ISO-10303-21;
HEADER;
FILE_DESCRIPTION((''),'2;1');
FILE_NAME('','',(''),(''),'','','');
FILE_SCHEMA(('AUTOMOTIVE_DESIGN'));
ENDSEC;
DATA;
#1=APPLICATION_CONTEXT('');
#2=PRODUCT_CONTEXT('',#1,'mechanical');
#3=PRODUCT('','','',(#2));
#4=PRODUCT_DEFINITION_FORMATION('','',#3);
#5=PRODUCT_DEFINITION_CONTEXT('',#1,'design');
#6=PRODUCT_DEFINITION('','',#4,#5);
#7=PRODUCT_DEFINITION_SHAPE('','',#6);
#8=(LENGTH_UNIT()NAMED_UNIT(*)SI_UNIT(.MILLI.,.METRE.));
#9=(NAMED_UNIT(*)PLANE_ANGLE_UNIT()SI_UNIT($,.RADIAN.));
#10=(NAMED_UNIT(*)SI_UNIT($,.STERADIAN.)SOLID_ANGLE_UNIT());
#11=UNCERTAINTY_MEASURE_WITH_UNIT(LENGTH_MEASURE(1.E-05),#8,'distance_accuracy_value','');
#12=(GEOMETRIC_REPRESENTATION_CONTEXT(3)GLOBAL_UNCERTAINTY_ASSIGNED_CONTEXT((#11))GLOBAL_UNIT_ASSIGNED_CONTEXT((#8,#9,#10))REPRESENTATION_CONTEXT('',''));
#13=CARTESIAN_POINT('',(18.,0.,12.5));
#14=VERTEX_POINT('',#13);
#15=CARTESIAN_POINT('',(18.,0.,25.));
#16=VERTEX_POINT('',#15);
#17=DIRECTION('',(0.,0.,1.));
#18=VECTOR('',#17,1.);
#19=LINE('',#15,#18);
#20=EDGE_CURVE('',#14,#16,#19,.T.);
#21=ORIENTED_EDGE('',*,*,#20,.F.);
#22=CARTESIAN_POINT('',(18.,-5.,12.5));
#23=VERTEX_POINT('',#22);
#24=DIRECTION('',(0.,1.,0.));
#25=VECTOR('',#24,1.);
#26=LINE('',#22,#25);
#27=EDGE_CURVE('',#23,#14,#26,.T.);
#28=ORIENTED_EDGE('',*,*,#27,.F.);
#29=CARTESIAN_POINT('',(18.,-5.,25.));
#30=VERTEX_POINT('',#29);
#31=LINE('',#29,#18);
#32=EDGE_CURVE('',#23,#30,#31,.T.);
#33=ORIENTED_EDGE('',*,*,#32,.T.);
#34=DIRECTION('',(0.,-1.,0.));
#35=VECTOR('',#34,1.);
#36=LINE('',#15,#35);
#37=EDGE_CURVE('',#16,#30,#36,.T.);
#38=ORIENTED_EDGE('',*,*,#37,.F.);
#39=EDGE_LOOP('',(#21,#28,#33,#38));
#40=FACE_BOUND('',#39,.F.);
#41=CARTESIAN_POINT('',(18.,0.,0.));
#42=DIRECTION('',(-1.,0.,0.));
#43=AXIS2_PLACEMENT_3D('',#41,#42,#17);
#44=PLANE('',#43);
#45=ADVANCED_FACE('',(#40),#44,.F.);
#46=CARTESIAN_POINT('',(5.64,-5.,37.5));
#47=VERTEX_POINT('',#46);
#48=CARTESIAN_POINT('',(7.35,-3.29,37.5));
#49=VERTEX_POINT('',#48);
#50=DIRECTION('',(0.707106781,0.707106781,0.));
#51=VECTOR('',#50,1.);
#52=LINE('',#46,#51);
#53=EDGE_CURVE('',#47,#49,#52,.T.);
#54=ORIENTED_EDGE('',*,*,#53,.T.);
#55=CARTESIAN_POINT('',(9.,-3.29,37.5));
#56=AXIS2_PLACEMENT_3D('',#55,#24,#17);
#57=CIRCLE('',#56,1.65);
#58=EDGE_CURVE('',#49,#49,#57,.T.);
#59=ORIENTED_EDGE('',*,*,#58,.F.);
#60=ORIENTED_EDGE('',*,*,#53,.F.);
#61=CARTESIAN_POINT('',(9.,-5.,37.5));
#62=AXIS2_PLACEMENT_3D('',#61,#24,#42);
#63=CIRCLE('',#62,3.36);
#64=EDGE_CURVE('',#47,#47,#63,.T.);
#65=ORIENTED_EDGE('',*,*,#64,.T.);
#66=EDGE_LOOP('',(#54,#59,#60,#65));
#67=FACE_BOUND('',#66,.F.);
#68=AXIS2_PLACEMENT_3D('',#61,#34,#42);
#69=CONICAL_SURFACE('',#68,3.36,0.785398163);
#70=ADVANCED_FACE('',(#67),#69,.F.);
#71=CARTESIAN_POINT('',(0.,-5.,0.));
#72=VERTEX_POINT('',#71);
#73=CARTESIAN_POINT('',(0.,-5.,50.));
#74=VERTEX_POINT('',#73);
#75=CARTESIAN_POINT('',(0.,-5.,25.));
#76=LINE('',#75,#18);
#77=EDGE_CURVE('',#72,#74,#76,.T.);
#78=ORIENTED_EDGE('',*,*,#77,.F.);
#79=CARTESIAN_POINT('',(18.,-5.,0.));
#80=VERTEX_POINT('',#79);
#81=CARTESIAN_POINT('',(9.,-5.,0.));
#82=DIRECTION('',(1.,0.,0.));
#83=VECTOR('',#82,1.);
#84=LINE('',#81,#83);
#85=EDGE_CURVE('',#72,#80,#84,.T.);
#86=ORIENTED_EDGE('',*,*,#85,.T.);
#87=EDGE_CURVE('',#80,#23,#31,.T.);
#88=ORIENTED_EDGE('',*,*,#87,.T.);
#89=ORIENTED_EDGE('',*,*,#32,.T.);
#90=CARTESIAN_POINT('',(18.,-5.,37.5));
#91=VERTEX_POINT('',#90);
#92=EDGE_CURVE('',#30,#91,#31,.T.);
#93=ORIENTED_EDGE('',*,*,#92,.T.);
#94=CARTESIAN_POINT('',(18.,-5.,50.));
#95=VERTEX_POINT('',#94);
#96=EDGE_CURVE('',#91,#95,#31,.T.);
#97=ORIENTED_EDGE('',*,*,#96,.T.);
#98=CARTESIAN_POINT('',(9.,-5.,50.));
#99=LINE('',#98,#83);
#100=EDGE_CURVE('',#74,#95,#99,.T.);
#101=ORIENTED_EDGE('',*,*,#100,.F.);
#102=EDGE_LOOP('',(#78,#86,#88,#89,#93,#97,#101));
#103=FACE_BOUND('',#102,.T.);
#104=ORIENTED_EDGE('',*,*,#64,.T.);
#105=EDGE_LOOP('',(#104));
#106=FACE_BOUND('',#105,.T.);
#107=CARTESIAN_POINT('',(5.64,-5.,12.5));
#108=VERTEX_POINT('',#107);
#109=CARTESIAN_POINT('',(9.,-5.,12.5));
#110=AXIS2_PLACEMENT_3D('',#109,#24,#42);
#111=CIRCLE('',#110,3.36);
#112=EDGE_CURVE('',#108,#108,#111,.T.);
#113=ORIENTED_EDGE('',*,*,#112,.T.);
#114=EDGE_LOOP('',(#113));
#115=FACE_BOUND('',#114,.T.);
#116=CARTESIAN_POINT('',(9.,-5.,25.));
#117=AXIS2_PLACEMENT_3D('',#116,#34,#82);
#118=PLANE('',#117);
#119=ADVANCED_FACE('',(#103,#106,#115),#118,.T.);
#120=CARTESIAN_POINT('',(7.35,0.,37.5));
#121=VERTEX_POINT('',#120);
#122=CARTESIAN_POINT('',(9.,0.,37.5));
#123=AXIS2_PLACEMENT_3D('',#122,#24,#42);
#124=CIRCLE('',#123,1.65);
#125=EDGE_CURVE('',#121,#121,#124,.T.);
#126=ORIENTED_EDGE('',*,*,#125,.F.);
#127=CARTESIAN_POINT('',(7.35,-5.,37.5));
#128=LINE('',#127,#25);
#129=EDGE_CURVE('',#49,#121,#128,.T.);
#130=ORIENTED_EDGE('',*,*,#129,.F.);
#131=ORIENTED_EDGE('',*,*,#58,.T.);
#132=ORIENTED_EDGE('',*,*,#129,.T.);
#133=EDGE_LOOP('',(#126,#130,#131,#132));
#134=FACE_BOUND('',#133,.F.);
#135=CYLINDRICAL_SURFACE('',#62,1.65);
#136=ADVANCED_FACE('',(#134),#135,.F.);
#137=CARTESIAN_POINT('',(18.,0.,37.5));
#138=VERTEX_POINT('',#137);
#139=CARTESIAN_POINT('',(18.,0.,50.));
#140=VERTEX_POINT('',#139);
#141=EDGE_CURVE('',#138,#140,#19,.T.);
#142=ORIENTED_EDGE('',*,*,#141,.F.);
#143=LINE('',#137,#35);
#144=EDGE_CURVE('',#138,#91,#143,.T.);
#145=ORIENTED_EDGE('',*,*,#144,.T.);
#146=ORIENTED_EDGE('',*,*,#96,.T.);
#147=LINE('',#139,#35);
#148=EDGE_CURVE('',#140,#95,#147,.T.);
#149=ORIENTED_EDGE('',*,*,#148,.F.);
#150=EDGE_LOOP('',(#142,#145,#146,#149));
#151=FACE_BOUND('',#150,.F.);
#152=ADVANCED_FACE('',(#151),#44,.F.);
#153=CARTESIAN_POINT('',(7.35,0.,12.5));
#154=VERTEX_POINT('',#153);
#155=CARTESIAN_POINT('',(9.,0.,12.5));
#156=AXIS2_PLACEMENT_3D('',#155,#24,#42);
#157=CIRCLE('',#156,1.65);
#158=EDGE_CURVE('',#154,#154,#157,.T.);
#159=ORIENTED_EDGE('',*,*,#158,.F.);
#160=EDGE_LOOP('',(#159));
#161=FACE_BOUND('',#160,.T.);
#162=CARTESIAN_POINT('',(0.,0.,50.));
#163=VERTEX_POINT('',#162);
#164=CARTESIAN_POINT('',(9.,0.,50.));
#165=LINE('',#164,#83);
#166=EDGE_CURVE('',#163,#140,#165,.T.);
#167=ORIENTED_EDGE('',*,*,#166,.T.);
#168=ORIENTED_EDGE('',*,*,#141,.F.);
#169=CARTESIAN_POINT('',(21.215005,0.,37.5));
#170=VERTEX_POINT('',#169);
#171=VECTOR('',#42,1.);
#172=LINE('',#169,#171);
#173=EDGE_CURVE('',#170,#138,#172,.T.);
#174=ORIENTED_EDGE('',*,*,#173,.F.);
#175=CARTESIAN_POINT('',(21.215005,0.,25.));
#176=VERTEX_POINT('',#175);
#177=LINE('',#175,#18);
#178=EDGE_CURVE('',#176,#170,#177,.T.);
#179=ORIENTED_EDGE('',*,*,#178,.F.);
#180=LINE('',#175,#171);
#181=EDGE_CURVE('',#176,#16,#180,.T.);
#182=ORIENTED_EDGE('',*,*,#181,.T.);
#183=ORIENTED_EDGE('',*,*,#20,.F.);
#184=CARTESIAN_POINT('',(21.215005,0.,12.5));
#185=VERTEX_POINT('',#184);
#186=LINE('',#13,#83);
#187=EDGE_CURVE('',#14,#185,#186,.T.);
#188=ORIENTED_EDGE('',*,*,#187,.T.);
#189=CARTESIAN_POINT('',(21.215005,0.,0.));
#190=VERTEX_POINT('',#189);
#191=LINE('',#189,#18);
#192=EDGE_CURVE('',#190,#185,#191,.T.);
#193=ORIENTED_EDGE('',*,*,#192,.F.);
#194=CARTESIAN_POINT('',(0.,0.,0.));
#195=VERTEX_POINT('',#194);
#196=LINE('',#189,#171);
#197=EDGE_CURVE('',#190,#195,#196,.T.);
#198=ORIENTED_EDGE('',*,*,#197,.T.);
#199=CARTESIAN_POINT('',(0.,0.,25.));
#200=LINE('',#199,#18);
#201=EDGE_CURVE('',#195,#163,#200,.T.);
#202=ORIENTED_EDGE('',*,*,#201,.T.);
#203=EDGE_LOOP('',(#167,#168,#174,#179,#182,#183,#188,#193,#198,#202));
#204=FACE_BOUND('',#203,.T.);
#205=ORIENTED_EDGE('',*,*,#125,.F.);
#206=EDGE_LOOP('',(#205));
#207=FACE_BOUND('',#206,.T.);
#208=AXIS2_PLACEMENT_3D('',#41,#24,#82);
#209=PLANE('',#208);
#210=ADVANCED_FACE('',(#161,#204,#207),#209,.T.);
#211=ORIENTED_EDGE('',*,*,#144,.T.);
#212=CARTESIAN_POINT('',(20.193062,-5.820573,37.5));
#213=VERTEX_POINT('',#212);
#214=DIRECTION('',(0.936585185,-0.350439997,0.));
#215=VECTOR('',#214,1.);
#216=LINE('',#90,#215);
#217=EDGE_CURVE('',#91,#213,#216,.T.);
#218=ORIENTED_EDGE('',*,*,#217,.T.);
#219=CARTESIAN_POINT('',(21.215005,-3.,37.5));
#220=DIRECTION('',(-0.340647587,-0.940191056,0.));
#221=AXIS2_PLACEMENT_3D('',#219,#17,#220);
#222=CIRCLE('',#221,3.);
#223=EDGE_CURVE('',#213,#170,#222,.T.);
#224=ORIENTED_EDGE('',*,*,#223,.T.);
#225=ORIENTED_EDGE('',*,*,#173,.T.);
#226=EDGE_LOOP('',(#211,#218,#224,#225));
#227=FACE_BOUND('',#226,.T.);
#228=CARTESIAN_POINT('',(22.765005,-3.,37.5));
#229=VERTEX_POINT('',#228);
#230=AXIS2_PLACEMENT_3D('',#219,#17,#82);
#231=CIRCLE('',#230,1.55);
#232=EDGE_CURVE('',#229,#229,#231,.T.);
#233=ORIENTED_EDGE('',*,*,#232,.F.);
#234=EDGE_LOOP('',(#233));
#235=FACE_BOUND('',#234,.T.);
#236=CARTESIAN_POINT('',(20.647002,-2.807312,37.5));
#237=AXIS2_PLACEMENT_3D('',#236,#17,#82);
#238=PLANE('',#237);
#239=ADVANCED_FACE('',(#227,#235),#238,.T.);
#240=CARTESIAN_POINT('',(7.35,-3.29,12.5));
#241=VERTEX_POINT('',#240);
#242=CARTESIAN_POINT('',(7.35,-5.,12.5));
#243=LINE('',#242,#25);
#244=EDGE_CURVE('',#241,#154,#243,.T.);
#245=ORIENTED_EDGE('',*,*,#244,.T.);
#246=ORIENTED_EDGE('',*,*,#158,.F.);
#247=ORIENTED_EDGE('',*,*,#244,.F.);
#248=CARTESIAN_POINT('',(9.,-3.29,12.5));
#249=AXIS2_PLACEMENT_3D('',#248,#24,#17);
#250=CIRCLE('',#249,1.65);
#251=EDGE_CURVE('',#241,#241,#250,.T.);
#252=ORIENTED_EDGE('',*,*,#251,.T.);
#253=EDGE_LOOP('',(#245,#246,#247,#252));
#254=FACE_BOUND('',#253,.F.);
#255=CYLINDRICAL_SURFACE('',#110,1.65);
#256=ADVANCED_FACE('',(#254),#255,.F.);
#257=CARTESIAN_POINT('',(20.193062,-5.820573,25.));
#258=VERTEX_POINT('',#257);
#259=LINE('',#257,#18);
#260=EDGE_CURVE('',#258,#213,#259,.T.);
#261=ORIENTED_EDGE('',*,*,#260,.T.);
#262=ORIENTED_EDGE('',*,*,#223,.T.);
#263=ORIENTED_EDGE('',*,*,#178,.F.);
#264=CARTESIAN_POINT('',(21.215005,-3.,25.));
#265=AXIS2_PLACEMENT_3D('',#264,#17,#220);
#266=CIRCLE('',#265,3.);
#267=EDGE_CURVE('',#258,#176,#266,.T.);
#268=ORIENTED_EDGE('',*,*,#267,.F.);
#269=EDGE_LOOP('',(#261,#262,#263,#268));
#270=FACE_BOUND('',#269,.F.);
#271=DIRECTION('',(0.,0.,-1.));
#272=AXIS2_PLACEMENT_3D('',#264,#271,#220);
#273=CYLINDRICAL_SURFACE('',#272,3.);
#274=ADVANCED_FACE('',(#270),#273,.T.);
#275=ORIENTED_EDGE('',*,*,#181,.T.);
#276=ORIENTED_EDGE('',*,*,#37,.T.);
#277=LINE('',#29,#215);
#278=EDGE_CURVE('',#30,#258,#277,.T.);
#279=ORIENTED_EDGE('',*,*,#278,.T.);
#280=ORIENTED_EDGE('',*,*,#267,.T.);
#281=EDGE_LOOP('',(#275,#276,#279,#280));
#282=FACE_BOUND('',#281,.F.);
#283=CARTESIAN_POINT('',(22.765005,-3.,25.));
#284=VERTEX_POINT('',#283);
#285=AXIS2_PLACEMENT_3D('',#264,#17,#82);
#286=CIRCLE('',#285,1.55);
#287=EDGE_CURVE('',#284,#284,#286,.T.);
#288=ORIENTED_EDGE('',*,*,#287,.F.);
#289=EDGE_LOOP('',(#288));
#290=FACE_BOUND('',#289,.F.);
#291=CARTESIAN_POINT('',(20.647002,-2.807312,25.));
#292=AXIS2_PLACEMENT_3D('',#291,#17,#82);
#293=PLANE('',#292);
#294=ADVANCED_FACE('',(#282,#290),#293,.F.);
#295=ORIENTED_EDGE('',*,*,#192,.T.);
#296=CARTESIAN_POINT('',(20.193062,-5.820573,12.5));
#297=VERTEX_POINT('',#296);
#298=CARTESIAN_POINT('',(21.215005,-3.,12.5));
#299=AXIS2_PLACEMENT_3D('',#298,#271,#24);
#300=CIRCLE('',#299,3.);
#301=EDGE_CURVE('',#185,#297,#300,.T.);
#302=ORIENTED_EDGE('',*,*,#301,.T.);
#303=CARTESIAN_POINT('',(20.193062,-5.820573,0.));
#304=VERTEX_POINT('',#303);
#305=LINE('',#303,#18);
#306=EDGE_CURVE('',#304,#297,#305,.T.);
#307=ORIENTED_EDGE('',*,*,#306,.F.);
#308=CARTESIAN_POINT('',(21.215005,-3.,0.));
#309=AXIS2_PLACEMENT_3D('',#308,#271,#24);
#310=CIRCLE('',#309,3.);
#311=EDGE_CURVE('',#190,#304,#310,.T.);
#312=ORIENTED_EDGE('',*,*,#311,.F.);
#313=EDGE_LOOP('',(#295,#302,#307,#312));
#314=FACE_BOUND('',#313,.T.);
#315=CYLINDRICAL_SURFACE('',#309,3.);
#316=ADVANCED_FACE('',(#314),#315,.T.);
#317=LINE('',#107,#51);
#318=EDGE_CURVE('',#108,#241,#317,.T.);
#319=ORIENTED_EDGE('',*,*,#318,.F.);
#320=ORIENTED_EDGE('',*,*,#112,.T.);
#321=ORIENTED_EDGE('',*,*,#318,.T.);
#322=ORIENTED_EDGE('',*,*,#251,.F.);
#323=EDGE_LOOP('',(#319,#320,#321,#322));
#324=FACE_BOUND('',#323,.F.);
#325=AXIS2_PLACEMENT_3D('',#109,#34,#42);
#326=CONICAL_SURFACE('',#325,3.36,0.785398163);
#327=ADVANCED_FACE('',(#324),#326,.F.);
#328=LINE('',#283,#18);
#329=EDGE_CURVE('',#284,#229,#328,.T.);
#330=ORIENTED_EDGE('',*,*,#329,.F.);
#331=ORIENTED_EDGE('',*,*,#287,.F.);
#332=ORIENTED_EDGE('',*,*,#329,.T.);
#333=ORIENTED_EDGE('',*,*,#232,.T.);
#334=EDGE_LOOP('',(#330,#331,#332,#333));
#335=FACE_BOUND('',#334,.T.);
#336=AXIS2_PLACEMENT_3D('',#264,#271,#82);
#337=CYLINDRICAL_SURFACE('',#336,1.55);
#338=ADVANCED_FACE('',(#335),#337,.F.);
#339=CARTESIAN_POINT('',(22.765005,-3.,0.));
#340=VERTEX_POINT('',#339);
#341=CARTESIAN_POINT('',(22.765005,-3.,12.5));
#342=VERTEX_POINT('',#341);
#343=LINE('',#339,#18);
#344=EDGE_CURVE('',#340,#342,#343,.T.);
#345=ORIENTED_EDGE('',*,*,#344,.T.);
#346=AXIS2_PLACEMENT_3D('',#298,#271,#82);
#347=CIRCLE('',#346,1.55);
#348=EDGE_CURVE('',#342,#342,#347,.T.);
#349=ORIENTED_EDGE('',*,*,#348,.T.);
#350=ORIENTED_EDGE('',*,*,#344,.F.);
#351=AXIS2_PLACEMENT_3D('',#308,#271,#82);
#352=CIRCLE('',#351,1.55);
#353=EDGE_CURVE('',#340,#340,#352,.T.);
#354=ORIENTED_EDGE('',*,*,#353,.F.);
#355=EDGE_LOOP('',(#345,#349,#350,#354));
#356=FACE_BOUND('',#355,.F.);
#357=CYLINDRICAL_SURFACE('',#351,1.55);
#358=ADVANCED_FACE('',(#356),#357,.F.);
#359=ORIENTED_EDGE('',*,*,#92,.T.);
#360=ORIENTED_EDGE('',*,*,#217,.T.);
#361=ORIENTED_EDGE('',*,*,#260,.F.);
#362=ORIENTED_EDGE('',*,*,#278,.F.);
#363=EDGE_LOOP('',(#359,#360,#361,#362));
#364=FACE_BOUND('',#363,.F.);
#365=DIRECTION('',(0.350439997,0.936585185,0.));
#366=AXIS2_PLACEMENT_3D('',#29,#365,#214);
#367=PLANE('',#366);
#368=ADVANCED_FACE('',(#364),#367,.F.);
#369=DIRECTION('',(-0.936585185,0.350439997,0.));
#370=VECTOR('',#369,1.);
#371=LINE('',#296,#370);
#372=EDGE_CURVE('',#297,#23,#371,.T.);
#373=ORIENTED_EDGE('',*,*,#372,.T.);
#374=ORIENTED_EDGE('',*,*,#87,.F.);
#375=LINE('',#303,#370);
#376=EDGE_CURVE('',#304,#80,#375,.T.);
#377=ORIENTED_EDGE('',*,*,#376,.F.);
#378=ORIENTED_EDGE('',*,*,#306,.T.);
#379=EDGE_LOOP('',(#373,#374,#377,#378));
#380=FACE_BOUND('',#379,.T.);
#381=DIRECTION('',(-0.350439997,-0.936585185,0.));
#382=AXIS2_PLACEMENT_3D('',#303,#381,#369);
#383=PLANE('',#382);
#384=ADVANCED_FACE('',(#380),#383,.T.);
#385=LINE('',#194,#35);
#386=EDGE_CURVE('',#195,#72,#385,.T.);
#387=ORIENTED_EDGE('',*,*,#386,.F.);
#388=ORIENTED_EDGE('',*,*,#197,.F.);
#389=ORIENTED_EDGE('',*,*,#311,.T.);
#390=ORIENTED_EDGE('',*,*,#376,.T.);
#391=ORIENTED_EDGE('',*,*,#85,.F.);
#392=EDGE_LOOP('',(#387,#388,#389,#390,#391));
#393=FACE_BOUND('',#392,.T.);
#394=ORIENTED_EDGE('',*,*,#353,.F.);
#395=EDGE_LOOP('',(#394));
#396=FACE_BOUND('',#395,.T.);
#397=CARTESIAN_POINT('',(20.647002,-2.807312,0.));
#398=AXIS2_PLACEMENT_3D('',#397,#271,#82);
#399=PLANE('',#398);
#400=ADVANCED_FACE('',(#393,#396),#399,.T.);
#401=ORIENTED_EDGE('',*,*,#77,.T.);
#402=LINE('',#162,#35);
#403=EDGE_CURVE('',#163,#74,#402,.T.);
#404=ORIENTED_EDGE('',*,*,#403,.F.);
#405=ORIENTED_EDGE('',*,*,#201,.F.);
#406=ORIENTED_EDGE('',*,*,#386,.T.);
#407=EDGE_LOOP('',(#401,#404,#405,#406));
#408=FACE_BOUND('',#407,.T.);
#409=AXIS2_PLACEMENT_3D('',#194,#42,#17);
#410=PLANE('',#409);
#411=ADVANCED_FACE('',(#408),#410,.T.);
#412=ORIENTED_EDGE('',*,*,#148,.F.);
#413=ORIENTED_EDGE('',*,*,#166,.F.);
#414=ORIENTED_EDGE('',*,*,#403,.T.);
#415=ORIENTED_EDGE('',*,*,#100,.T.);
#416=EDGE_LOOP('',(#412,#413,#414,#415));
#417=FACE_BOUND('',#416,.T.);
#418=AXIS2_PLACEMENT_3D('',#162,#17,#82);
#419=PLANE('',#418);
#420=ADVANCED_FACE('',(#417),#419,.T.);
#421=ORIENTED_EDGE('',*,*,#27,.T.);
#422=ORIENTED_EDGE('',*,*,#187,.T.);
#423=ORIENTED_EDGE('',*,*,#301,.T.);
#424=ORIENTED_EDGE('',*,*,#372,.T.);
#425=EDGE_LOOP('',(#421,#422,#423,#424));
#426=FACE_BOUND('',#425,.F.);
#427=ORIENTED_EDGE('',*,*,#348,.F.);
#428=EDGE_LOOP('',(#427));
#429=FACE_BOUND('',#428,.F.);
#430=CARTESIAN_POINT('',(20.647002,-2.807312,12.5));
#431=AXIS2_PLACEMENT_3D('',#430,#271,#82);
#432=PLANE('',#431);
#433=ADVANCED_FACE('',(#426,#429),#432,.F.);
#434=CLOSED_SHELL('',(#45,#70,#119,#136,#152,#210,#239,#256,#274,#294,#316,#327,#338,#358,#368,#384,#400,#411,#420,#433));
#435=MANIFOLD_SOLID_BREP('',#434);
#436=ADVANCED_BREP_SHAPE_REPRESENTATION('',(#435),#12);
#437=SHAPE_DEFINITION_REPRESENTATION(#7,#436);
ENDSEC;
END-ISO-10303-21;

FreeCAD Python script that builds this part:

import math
import FreeCAD as App
import Part
import Sketcher
from FreeCAD import Vector

doc = App.newDocument("Part")
body = doc.addObject("PartDesign::Body", "Body")

# Sketch on XZ plane
sketch1 = body.newObject("Sketcher::SketchObject", "Sketch")
sketch1.AttachmentSupport = (doc.getObject("XZ_Plane"), [""])
sketch1.MapMode = "FlatFace"
sketch1.addGeometry([
    Part.LineSegment(Vector(0, 50, 0), Vector(0, 0, 0)),
    Part.LineSegment(Vector(0, 0, 0), Vector(18, 0, 0)),
    Part.LineSegment(Vector(18, 0, 0), Vector(18, 50, 0)),
    Part.LineSegment(Vector(18, 50, 0), Vector(0, 50, 0)),
], False)
sketch1.addConstraint([
    Sketcher.Constraint("Coincident", 0, 2, 1, 1),
    Sketcher.Constraint("Coincident", 1, 2, 2, 1),
    Sketcher.Constraint("Coincident", 2, 2, 3, 1),
    Sketcher.Constraint("Coincident", 3, 2, 0, 1),
    Sketcher.Constraint("Vertical", 0),
    Sketcher.Constraint("Horizontal", 1),
    Sketcher.Constraint("Vertical", 2),
    Sketcher.Constraint("Horizontal", 3),
    Sketcher.Constraint("Coincident", 0, 2, -1, 1),
    Sketcher.Constraint("DistanceX", 1, 1, 1, 2, 18.0),
    Sketcher.Constraint("DistanceY", 0, 2, 0, 1, 50.0),
])
pad1 = body.newObject("PartDesign::Pad", "Pad")
pad1.Profile = sketch1
pad1.Length = 5

# Sketch on XY plane
sketch2 = body.newObject("Sketcher::SketchObject", "Sketch001")
sketch2.AttachmentSupport = (doc.getObject("XY_Plane"), [""])
sketch2.MapMode = "FlatFace"
sketch2.addGeometry([
    Part.LineSegment(Vector(18, 0, 0), Vector(21.2, 0, 0)),  # 0
    Part.ArcOfCircle(Part.Circle(Vector(21.2, -3, 0), Vector(0, 0, 1), 3), math.radians(-110), math.radians(90)),  # 1
    Part.LineSegment(Vector(20.2, -5.8, 0), Vector(18, -5, 0)),  # 2
    Part.LineSegment(Vector(18, -5, 0), Vector(18, 0, 0)),  # 3
    Part.Circle(Vector(21.2, -3, 0), Vector(0, 0, 1), 1.6),  # 4
], False)
sketch2.addConstraint([
    Sketcher.Constraint("Tangent", 0, 2, 1, 2),
    Sketcher.Constraint("Coincident", 1, 1, 2, 1),
    Sketcher.Constraint("Coincident", 2, 2, 3, 1),
    Sketcher.Constraint("Coincident", 3, 2, 0, 1),
    Sketcher.Constraint("Horizontal", 0),
    Sketcher.Constraint("Vertical", 3),
    Sketcher.Constraint("Coincident", 4, 3, 1, 3),
    Sketcher.Constraint("PointOnObject", 0, 2, -1),
    Sketcher.Constraint("Radius", 1, 3.0),
    Sketcher.Constraint("Diameter", 4, 3.1),
    Sketcher.Constraint("DistanceY", 3, 1, 3, 2, 5.0),
    Sketcher.Constraint("DistanceX", -1, 1, 2, 2, 18.0),
    Sketcher.Constraint("Distance", 2, 2.341551),
    Sketcher.Constraint("DistanceX", 0, 1, 0, 2, 3.215005),
])
pad2 = body.newObject("PartDesign::Pad", "Pad001")
pad2.Profile = sketch2
pad2.Length = 12.5

# Sketch on XY plane
sketch3 = body.newObject("Sketcher::SketchObject", "Sketch002")
sketch3.AttachmentSupport = (doc.getObject("XY_Plane"), [""])
sketch3.MapMode = "FlatFace"
sketch3.AttachmentOffset = App.Placement(Vector(0, 0, 25), App.Rotation())
sketch3.addGeometry([
    Part.LineSegment(Vector(18, 0, 0), Vector(18, -5, 0)),  # 0
    Part.LineSegment(Vector(18, -5, 0), Vector(20.2, -5.8, 0)),  # 1
    Part.ArcOfCircle(Part.Circle(Vector(21.2, -3, 0), Vector(0, 0, 1), 3), math.radians(-110), math.radians(90)),  # 2
    Part.LineSegment(Vector(21.2, 0, 0), Vector(18, 0, 0)),  # 3
    Part.Circle(Vector(21.2, -3, 0), Vector(0, 0, 1), 1.6),  # 4
], False)
sketch3.addConstraint([
    Sketcher.Constraint("Coincident", 0, 2, 1, 1),
    Sketcher.Constraint("Coincident", 1, 2, 2, 1),
    Sketcher.Constraint("Tangent", 2, 2, 3, 1),
    Sketcher.Constraint("Coincident", 3, 2, 0, 1),
    Sketcher.Constraint("Vertical", 0),
    Sketcher.Constraint("Horizontal", 3),
    Sketcher.Constraint("Coincident", 4, 3, 2, 3),
    Sketcher.Constraint("PointOnObject", 2, 2, -1),
    Sketcher.Constraint("Radius", 2, 3.0),
    Sketcher.Constraint("Diameter", 4, 3.1),
    Sketcher.Constraint("DistanceY", 0, 2, 0, 1, 5.0),
    Sketcher.Constraint("DistanceX", -1, 1, 0, 2, 18.0),
    Sketcher.Constraint("Distance", 1, 2.341551),
    Sketcher.Constraint("DistanceX", 3, 2, 3, 1, 3.215005),
])
pad3 = body.newObject("PartDesign::Pad", "Pad002")
pad3.Profile = sketch3
pad3.Length = 12.5

# Sketch on XZ plane
sketch4 = body.newObject("Sketcher::SketchObject", "Sketch003")
sketch4.AttachmentSupport = (doc.getObject("XZ_Plane"), [""])
sketch4.MapMode = "FlatFace"
sketch4.AttachmentOffset = App.Placement(Vector(0, 0, 5), App.Rotation())
sketch4.addGeometry([
    Part.Circle(Vector(9, 37.5, 0), Vector(0, 0, 1), 1.6),
    Part.Circle(Vector(9, 12.5, 0), Vector(0, 0, 1), 1.6),
], False)
sketch4.addConstraint([
    Sketcher.Constraint("Equal", 0, 1),
    Sketcher.Constraint("Vertical", 0, 3, 1, 3),
    Sketcher.Constraint("Diameter", 0, 3.3),
    Sketcher.Constraint("DistanceX", -1, 1, 0, 3, 9.0),
    Sketcher.Constraint("DistanceY", 1, 3, 0, 3, 25.0),
    Sketcher.Constraint("DistanceY", -1, 1, 0, 3, 37.5),
])
doc.recompute()
hole = body.newObject("PartDesign::Hole", "Hole")
hole.Profile = sketch4
hole.ThreadType = "None"
hole.Diameter = 3.3
hole.DepthType = "Dimension"
hole.Depth = 40
hole.DrillPoint = "Angled"
hole.DrillPointAngle = 118
hole.HoleCutType = "Countersink"
hole.HoleCutDiameter = 6.72
hole.HoleCutCountersinkAngle = 90

doc.recompute()
